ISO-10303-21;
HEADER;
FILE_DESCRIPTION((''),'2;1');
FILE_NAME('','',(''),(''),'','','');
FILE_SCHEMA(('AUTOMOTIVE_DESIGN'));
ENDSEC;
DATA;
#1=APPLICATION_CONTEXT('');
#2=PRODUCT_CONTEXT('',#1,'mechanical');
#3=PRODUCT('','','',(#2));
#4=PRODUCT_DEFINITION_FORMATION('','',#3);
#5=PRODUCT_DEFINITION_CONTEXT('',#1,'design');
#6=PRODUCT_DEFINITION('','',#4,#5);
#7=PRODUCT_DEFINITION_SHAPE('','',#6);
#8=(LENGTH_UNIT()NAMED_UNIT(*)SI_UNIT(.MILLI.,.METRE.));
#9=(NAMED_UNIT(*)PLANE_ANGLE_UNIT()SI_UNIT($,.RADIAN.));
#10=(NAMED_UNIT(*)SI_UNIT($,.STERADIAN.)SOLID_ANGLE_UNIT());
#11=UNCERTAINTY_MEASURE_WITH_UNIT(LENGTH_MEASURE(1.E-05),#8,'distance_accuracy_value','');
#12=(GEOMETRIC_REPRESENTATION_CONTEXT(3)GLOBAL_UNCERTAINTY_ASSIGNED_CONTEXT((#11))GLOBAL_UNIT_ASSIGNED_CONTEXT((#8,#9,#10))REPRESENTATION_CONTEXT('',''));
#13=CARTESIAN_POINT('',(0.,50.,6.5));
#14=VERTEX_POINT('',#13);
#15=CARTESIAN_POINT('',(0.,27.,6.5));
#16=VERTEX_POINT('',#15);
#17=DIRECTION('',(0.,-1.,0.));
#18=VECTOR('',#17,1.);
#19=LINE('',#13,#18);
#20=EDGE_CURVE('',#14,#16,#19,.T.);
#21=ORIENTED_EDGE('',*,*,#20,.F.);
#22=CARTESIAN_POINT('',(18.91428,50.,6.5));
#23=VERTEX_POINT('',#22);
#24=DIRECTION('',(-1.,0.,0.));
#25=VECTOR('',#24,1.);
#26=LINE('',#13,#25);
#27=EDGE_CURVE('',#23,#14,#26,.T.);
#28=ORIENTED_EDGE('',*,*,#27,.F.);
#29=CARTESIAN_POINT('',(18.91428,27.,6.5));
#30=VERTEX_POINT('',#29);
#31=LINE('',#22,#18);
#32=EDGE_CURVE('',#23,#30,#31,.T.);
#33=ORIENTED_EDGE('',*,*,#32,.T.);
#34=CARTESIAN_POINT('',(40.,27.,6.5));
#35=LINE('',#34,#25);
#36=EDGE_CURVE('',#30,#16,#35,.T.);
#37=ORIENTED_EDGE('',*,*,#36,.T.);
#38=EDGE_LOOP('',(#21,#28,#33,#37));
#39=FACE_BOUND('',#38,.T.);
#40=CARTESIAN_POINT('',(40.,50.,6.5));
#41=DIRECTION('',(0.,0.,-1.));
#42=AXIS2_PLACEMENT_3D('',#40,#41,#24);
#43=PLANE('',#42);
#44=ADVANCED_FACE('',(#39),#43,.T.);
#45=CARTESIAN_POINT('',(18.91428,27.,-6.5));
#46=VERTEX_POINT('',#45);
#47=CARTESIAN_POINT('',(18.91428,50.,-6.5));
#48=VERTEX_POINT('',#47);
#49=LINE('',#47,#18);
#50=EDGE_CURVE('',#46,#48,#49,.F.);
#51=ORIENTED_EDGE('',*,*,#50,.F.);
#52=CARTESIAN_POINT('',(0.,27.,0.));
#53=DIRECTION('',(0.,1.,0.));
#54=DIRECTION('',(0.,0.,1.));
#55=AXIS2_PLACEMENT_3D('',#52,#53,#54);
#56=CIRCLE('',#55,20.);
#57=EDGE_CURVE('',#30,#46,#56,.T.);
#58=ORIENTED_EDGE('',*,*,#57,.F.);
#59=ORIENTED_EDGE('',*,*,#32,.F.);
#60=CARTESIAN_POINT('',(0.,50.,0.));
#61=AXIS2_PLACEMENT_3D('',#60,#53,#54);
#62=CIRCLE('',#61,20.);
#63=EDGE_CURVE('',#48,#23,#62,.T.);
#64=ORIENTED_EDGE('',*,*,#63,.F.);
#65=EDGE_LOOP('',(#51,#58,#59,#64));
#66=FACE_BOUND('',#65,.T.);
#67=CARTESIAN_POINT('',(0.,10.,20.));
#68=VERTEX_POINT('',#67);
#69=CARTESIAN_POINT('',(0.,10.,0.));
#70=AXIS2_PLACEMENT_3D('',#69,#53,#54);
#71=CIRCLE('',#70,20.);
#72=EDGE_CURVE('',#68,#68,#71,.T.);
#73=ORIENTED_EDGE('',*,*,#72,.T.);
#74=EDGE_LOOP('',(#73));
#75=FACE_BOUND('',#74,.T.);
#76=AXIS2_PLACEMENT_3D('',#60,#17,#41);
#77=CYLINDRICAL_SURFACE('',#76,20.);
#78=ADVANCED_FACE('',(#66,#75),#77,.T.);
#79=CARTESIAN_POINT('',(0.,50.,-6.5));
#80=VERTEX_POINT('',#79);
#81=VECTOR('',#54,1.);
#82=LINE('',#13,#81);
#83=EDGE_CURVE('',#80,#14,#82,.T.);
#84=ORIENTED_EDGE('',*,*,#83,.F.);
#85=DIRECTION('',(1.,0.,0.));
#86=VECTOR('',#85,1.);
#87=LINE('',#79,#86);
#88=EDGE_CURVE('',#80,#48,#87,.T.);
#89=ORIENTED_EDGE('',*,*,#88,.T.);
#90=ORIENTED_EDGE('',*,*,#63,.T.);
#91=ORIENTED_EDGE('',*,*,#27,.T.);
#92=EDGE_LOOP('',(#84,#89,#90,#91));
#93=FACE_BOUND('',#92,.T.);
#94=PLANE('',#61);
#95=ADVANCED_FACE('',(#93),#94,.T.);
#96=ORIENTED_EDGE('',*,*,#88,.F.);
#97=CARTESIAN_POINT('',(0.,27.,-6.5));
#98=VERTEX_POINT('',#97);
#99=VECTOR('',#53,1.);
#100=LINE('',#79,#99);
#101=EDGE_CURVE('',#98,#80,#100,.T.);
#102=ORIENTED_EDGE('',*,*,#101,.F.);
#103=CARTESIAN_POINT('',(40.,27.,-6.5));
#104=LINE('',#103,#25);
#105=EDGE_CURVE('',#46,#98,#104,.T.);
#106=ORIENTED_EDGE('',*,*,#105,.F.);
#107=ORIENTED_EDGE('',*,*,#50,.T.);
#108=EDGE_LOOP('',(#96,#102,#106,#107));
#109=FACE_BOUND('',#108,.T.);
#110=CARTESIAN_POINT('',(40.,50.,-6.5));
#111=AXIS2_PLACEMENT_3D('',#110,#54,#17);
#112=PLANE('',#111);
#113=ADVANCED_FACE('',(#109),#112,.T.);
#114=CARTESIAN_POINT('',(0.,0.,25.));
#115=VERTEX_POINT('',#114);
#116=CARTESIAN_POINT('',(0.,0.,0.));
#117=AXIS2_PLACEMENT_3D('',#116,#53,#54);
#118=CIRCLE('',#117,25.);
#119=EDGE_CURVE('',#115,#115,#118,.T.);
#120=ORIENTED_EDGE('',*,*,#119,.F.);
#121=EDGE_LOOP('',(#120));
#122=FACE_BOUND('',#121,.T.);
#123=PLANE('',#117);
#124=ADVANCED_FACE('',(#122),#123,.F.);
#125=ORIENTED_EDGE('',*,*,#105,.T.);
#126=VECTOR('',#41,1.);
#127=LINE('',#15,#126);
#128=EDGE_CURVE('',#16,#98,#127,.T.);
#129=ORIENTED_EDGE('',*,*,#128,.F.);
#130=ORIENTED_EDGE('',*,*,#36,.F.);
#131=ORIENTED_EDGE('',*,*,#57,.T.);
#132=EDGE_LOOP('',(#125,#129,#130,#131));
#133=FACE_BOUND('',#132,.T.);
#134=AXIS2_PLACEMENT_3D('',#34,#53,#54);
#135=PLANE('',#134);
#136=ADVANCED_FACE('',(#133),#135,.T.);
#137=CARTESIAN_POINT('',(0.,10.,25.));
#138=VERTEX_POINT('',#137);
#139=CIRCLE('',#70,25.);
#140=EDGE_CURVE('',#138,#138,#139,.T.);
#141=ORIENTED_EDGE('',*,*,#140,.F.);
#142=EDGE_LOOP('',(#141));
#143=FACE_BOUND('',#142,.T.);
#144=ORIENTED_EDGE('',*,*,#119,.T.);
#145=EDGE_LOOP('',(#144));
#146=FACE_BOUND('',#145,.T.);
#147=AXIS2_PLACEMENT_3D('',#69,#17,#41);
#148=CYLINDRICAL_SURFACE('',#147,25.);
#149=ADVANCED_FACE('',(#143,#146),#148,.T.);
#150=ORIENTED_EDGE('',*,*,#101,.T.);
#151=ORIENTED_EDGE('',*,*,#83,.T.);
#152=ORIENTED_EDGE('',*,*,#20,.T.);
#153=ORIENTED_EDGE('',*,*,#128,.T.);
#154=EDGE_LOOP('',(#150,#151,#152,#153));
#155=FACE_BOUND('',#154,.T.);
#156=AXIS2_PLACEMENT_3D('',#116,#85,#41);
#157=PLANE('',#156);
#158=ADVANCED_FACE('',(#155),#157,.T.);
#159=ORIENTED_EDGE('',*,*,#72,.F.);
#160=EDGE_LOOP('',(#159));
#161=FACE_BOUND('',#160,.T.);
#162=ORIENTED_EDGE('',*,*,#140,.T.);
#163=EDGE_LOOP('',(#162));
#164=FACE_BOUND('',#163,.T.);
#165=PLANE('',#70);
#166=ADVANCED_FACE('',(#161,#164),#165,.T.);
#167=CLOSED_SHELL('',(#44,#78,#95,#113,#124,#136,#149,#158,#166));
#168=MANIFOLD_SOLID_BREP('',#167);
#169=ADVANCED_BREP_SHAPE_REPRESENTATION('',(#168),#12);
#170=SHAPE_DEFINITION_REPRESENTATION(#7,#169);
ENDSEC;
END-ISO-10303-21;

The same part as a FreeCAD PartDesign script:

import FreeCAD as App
import Part
import Sketcher

doc = App.newDocument("Part")
body = doc.addObject("PartDesign::Body", "Body")

sketch1 = doc.addObject("Sketcher::SketchObject", "Sketch")
body.addObject(sketch1)
sketch1.AttachmentSupport = (doc.XZ_Plane, [""])
sketch1.MapMode = "FlatFace"
sketch1.addGeometry(Part.Circle(App.Vector(0, 0, 0), App.Vector(0, 0, 1), 25), False)
sketch1.addConstraint([
    Sketcher.Constraint("Coincident", 0, 3, -1, 1),
    Sketcher.Constraint("Diameter", 0, 50.0),
])
pad1 = doc.addObject("PartDesign::Pad", "Pad")
body.addObject(pad1)
pad1.Profile = sketch1
pad1.Length = 10
pad1.Reversed = True

sketch2 = doc.addObject("Sketcher::SketchObject", "Sketch001")
body.addObject(sketch2)
sketch2.AttachmentSupport = (doc.XZ_Plane, [""])
sketch2.MapMode = "FlatFace"
sketch2.AttachmentOffset = App.Placement(App.Vector(0, 0, -10), App.Rotation())
sketch2.addGeometry(Part.Circle(App.Vector(0, 0, 0), App.Vector(0, 0, 1), 20), False)
sketch2.addConstraint([
    Sketcher.Constraint("Coincident", 0, 3, -1, 1),
    Sketcher.Constraint("Diameter", 0, 40.0),
])
pad2 = doc.addObject("PartDesign::Pad", "Pad001")
body.addObject(pad2)
pad2.Profile = sketch2
pad2.Length = 40
pad2.Reversed = True

sketch3 = doc.addObject("Sketcher::SketchObject", "Sketch002")
body.addObject(sketch3)
sketch3.AttachmentSupport = (doc.YZ_Plane, [""])
sketch3.MapMode = "FlatFace"
sketch3.addGeometry([
    Part.LineSegment(App.Vector(50, 6, 0), App.Vector(27, 6, 0)),
    Part.LineSegment(App.Vector(27, 6, 0), App.Vector(27, -6, 0)),
    Part.LineSegment(App.Vector(27, -6, 0), App.Vector(50, -6, 0)),
    Part.LineSegment(App.Vector(50, -6, 0), App.Vector(50, 6, 0)),
], False)
sketch3.addConstraint([
    Sketcher.Constraint("Coincident", 0, 2, 1, 1),
    Sketcher.Constraint("Coincident", 1, 2, 2, 1),
    Sketcher.Constraint("Coincident", 2, 2, 3, 1),
    Sketcher.Constraint("Coincident", 3, 2, 0, 1),
    Sketcher.Constraint("Horizontal", 0),
    Sketcher.Constraint("Vertical", 1),
    Sketcher.Constraint("Horizontal", 2),
    Sketcher.Constraint("Vertical", 3),
    Sketcher.Constraint("DistanceX", 0, 2, 0, 1, 23.0),
    Sketcher.Constraint("DistanceY", 1, 2, 1, 1, 13.0),
    Sketcher.Constraint("DistanceX", -1, 1, 0, 2, 27.0),
    Sketcher.Constraint("DistanceY", -1, 1, 0, 2, 6.5),
])
pocket1 = doc.addObject("PartDesign::Pocket", "Pocket")
body.addObject(pocket1)
pocket1.Profile = sketch3
pocket1.Length = 40
pocket1.Reversed = True

doc.recompute()
